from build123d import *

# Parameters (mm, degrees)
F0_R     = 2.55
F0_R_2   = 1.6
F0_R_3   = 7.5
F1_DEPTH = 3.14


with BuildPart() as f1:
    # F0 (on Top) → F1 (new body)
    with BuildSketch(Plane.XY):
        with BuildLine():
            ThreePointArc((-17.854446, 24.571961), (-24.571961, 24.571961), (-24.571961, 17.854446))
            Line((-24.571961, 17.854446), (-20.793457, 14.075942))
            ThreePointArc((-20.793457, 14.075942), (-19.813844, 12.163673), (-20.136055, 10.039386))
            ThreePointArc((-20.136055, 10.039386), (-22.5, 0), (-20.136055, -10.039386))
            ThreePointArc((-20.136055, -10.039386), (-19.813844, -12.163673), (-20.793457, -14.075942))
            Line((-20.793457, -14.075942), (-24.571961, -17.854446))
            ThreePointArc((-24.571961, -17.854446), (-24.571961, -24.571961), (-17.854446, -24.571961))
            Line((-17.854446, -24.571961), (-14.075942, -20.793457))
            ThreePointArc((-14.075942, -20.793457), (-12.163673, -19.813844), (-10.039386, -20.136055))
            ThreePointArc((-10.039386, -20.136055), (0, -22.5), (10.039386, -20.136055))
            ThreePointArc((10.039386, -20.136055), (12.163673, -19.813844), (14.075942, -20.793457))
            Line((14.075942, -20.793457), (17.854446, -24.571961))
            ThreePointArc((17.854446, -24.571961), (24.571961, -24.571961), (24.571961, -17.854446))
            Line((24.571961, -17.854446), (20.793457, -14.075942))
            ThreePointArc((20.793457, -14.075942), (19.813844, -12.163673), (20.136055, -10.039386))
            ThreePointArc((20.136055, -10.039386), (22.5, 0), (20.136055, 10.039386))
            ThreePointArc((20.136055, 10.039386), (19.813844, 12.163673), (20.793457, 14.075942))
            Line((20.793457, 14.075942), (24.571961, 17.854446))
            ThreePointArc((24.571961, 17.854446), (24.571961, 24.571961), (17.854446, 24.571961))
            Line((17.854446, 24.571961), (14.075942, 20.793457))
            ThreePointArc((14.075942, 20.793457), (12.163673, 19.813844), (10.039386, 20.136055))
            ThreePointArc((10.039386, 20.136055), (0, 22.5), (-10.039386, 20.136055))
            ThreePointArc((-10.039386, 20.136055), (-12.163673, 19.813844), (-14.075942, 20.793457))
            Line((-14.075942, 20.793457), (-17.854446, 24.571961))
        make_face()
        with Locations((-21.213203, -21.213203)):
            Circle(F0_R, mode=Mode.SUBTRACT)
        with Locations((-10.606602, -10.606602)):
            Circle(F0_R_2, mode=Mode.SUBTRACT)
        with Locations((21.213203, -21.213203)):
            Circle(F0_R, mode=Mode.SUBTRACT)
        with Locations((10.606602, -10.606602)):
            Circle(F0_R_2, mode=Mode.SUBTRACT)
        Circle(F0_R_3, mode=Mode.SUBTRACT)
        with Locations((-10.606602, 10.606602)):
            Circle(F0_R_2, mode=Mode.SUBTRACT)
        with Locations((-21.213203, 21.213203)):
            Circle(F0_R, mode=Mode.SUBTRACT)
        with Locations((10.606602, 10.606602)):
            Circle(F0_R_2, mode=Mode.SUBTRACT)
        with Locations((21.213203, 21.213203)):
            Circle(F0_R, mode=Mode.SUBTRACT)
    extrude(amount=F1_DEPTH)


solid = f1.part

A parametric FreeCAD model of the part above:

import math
import FreeCAD as App
import Part
import Sketcher

doc = App.newDocument("Part")
body = doc.addObject("PartDesign::Body", "Body")

# Sketch on XY plane
sketch1 = body.newObject("Sketcher::SketchObject", "Sketch")
sketch1.AttachmentSupport = (doc.getObject("XY_Plane"), [""])
sketch1.MapMode = "FlatFace"
sketch1.addGeometry([
    Part.ArcOfCircle(Part.Circle(App.Vector(-21.2, 21.2, 0), App.Vector(0, 0, 1), 4.8), math.radians(45), math.radians(225)),  # 0
    Part.LineSegment(App.Vector(-24.6, 17.9, 0), App.Vector(-20.8, 14.1, 0)),  # 1
    Part.ArcOfCircle(Part.Circle(App.Vector(-23.3, 11.6, 0), App.Vector(0, 0, 1), 3.5), math.radians(-26), math.radians(45)),  # 2
    Part.ArcOfCircle(Part.Circle(App.Vector(0, 0, 0), App.Vector(0, 0, 1), 22.5), math.radians(154), math.radians(206)),  # 3
    Part.ArcOfCircle(Part.Circle(App.Vector(-23.3, -11.6, 0), App.Vector(0, 0, 1), 3.5), math.radians(-45), math.radians(26)),  # 4
    Part.LineSegment(App.Vector(-20.8, -14.1, 0), App.Vector(-24.6, -17.9, 0)),  # 5
    Part.ArcOfCircle(Part.Circle(App.Vector(-21.2, -21.2, 0), App.Vector(0, 0, 1), 4.8), math.radians(135), math.radians(315)),  # 6
    Part.LineSegment(App.Vector(-17.9, -24.6, 0), App.Vector(-14.1, -20.8, 0)),  # 7
    Part.ArcOfCircle(Part.Circle(App.Vector(-11.6, -23.3, 0), App.Vector(0, 0, 1), 3.5), math.radians(64), math.radians(135)),  # 8
    Part.ArcOfCircle(Part.Circle(App.Vector(0, 0, 0), App.Vector(0, 0, 1), 22.5), math.radians(-116), math.radians(-64)),  # 9
    Part.ArcOfCircle(Part.Circle(App.Vector(11.6, -23.3, 0), App.Vector(0, 0, 1), 3.5), math.radians(45), math.radians(116)),  # 10
    Part.LineSegment(App.Vector(14.1, -20.8, 0), App.Vector(17.9, -24.6, 0)),  # 11
    Part.ArcOfCircle(Part.Circle(App.Vector(21.2, -21.2, 0), App.Vector(0, 0, 1), 4.8), math.radians(-135), math.radians(45)),  # 12
    Part.LineSegment(App.Vector(24.6, -17.9, 0), App.Vector(20.8, -14.1, 0)),  # 13
    Part.ArcOfCircle(Part.Circle(App.Vector(23.3, -11.6, 0), App.Vector(0, 0, 1), 3.5), math.radians(154), math.radians(225)),  # 14
    Part.ArcOfCircle(Part.Circle(App.Vector(0, 0, 0), App.Vector(0, 0, 1), 22.5), math.radians(-26), math.radians(26)),  # 15
    Part.ArcOfCircle(Part.Circle(App.Vector(23.3, 11.6, 0), App.Vector(0, 0, 1), 3.5), math.radians(135), math.radians(206)),  # 16
    Part.LineSegment(App.Vector(20.8, 14.1, 0), App.Vector(24.6, 17.9, 0)),  # 17
    Part.ArcOfCircle(Part.Circle(App.Vector(21.2, 21.2, 0), App.Vector(0, 0, 1), 4.8), math.radians(-45), math.radians(135)),  # 18
    Part.LineSegment(App.Vector(17.9, 24.6, 0), App.Vector(14.1, 20.8, 0)),  # 19
    Part.ArcOfCircle(Part.Circle(App.Vector(11.6, 23.3, 0), App.Vector(0, 0, 1), 3.5), math.radians(-116), math.radians(-45)),  # 20
    Part.ArcOfCircle(Part.Circle(App.Vector(0, 0, 0), App.Vector(0, 0, 1), 22.5), math.radians(64), math.radians(116)),  # 21
    Part.ArcOfCircle(Part.Circle(App.Vector(-11.6, 23.3, 0), App.Vector(0, 0, 1), 3.5), math.radians(-135), math.radians(-64)),  # 22
    Part.LineSegment(App.Vector(-14.1, 20.8, 0), App.Vector(-17.9, 24.6, 0)),  # 23
    Part.Circle(App.Vector(-21.2, -21.2, 0), App.Vector(0, 0, 1), 2.5),  # 24
    Part.Circle(App.Vector(-10.6, -10.6, 0), App.Vector(0, 0, 1), 1.6),  # 25
    Part.Circle(App.Vector(21.2, -21.2, 0), App.Vector(0, 0, 1), 2.5),  # 26
    Part.Circle(App.Vector(10.6, -10.6, 0), App.Vector(0, 0, 1), 1.6),  # 27
    Part.Circle(App.Vector(-10.6, 10.6, 0), App.Vector(0, 0, 1), 1.6),  # 28
    Part.Circle(App.Vector(-21.2, 21.2, 0), App.Vector(0, 0, 1), 2.5),  # 29
    Part.Circle(App.Vector(0, 0, 0), App.Vector(0, 0, 1), 7.5),  # 30
    Part.Circle(App.Vector(10.6, 10.6, 0), App.Vector(0, 0, 1), 1.6),  # 31
    Part.Circle(App.Vector(21.2, 21.2, 0), App.Vector(0, 0, 1), 2.5),  # 32
], False)
sketch1.addConstraint([
    Sketcher.Constraint("Tangent", 0, 2, 1, 1),
    Sketcher.Constraint("Tangent", 1, 2, 2, 2),
    Sketcher.Constraint("Tangent", 2, 1, 3, 1),
    Sketcher.Constraint("Tangent", 3, 2, 4, 2),
    Sketcher.Constraint("Tangent", 4, 1, 5, 1),
    Sketcher.Constraint("Tangent", 5, 2, 6, 1),
    Sketcher.Constraint("Tangent", 6, 2, 7, 1),
    Sketcher.Constraint("Tangent", 7, 2, 8, 2),
    Sketcher.Constraint("Tangent", 8, 1, 9, 1),
    Sketcher.Constraint("Tangent", 9, 2, 10, 2),
    Sketcher.Constraint("Tangent", 10, 1, 11, 1),
    Sketcher.Constraint("Tangent", 11, 2, 12, 1),
    Sketcher.Constraint("Tangent", 12, 2, 13, 1),
    Sketcher.Constraint("Tangent", 13, 2, 14, 2),
    Sketcher.Constraint("Tangent", 14, 1, 15, 1),
    Sketcher.Constraint("Tangent", 15, 2, 16, 2),
    Sketcher.Constraint("Tangent", 16, 1, 17, 1),
    Sketcher.Constraint("Tangent", 17, 2, 18, 1),
    Sketcher.Constraint("Tangent", 18, 2, 19, 1),
    Sketcher.Constraint("Tangent", 19, 2, 20, 2),
    Sketcher.Constraint("Tangent", 20, 1, 21, 1),
    Sketcher.Constraint("Tangent", 21, 2, 22, 2),
    Sketcher.Constraint("Tangent", 22, 1, 23, 1),
    Sketcher.Constraint("Tangent", 23, 2, 0, 1),
    Sketcher.Constraint("Coincident", 3, 3, -1, 1),
    Sketcher.Constraint("Coincident", 9, 3, -1, 1),
    Sketcher.Constraint("Coincident", 15, 3, -1, 1),
    Sketcher.Constraint("Coincident", 21, 3, -1, 1),
    Sketcher.Constraint("Coincident", 30, 3, -1, 1),
    Sketcher.Constraint("Coincident", 24, 3, 6, 3),
    Sketcher.Constraint("Coincident", 26, 3, 12, 3),
    Sketcher.Constraint("Coincident", 29, 3, 0, 3),
    Sketcher.Constraint("Coincident", 32, 3, 18, 3),
    Sketcher.Constraint("Equal", 2, 4),
    Sketcher.Constraint("Equal", 0, 6),
    Sketcher.Constraint("Equal", 4, 8),
    Sketcher.Constraint("Equal", 3, 9),
    Sketcher.Constraint("Equal", 8, 10),
    Sketcher.Constraint("Equal", 6, 12),
    Sketcher.Constraint("Equal", 10, 14),
    Sketcher.Constraint("Equal", 9, 15),
    Sketcher.Constraint("Equal", 14, 16),
    Sketcher.Constraint("Equal", 12, 18),
    Sketcher.Constraint("Equal", 16, 20),
    Sketcher.Constraint("Equal", 15, 21),
    Sketcher.Constraint("Equal", 20, 22),
    Sketcher.Constraint("Equal", 24, 26),
    Sketcher.Constraint("Equal", 25, 27),
    Sketcher.Constraint("Equal", 27, 28),
    Sketcher.Constraint("Equal", 26, 29),
    Sketcher.Constraint("Equal", 28, 31),
    Sketcher.Constraint("Equal", 29, 32),
    Sketcher.Constraint("Symmetric", 0, 3, 12, 3, -1, 1),
    Sketcher.Constraint("Symmetric", 6, 3, 18, 3, -1, 1),
    Sketcher.Constraint("Symmetric", 27, 3, 28, 3, -1, 1),
    Sketcher.Constraint("Symmetric", 25, 3, 31, 3, -1, 1),
    Sketcher.Constraint("Symmetric", 6, 3, 12, 3, -2),
    Sketcher.Constraint("Symmetric", 25, 3, 27, 3, -2),
    Sketcher.Constraint("Perpendicular", 1, 5),
    Sketcher.Constraint("Parallel", 5, 7),
    Sketcher.Constraint("Perpendicular", 7, 11),
    Sketcher.Constraint("Parallel", 11, 13),
    Sketcher.Constraint("Perpendicular", 13, 17),
    Sketcher.Constraint("Parallel", 17, 19),
    Sketcher.Constraint("Perpendicular", 19, 23),
    Sketcher.Constraint("Horizontal", 8, 3, 10, 3),
    Sketcher.Constraint("Equal", 5, 7),
    Sketcher.Constraint("Diameter", 30, 15.0),
    Sketcher.Constraint("Diameter", 24, 5.1),
    Sketcher.Constraint("Diameter", 25, 3.2),
    Sketcher.Constraint("Radius", 2, 3.499999),
    Sketcher.Constraint("Radius", 0, 4.75),
    Sketcher.Constraint("Radius", 3, 22.499996),
    Sketcher.Constraint("DistanceX", 0, 3, 3, 3, 21.2132),
    Sketcher.Constraint("DistanceX", 25, 3, 3, 3, 10.606598),
    Sketcher.Constraint("DistanceY", 25, 3, 9, 3, 10.606598),
])
pad1 = body.newObject("PartDesign::Pad", "Pad")
pad1.Profile = sketch1
pad1.Length = 3.14

doc.recompute()
